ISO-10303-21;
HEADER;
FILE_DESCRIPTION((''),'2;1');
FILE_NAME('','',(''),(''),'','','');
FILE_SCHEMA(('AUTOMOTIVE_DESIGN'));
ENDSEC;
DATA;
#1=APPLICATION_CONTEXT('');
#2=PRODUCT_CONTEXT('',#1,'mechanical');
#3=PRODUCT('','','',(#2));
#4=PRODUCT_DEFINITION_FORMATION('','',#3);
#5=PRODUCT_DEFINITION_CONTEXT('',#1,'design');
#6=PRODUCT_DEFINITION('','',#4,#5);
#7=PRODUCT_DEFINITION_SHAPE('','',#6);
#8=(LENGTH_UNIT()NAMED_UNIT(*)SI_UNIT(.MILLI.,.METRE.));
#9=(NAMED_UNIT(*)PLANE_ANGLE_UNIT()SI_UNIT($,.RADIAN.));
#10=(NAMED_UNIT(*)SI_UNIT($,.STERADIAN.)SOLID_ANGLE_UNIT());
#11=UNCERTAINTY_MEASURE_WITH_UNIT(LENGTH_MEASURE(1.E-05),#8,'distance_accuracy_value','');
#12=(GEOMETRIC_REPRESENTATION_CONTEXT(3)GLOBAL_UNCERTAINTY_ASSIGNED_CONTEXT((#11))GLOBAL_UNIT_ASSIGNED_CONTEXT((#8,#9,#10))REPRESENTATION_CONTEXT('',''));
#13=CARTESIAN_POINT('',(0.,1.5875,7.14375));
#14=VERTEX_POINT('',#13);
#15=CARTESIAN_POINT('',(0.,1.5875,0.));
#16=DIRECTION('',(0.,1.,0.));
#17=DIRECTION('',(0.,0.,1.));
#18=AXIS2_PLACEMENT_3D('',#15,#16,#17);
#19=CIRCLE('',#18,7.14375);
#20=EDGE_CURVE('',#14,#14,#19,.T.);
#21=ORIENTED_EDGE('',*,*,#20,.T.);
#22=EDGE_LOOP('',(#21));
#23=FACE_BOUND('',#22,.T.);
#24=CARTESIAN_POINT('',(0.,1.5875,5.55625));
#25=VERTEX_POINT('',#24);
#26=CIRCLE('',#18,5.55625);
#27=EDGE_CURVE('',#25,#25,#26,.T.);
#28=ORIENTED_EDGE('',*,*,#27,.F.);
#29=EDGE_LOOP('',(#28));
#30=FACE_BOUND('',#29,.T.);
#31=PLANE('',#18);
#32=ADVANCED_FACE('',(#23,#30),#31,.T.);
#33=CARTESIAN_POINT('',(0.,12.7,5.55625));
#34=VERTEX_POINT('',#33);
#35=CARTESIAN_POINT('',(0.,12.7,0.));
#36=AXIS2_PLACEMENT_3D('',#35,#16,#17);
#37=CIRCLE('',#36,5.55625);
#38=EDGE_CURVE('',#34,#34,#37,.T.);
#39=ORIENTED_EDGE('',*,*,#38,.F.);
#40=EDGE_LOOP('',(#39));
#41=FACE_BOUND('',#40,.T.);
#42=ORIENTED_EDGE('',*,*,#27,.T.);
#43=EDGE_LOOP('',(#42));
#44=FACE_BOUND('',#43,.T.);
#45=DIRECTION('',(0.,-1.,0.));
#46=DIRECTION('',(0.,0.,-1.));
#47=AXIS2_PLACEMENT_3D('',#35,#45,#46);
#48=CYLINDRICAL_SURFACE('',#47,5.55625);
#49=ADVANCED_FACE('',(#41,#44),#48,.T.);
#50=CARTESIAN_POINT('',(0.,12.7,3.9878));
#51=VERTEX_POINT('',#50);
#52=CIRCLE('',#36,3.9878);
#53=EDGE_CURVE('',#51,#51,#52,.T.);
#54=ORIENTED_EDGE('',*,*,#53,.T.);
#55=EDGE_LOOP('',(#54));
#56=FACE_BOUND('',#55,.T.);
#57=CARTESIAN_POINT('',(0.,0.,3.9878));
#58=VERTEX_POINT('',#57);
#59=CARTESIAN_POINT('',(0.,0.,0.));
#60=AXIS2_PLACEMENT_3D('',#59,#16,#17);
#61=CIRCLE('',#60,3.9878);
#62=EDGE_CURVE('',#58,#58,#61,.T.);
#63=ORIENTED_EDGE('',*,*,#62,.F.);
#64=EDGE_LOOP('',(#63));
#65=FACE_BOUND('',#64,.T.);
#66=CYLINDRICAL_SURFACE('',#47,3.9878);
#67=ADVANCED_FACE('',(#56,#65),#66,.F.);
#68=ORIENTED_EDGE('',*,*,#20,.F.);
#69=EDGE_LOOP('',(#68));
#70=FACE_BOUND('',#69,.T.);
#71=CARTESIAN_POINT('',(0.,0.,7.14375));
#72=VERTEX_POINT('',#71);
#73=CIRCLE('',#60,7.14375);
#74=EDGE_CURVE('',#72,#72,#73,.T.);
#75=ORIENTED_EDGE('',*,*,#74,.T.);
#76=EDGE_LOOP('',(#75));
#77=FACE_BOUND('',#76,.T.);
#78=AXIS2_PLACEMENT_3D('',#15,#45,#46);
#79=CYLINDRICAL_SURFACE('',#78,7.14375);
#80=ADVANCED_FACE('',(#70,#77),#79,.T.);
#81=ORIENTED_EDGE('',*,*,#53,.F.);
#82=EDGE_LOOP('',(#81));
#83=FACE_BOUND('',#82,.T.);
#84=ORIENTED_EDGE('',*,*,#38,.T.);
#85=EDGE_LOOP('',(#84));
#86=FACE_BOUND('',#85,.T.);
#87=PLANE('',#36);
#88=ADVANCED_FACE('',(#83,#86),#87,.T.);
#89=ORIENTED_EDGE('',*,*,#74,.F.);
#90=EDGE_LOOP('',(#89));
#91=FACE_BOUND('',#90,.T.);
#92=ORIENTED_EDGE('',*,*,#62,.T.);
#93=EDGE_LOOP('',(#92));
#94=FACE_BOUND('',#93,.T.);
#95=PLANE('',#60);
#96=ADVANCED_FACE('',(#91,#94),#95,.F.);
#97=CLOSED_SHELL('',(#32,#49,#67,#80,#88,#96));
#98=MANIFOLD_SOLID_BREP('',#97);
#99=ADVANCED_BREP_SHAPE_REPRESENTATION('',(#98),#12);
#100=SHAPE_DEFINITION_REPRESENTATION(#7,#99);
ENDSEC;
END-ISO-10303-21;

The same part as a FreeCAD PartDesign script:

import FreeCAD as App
import Part
import Sketcher
from FreeCAD import Vector
Q = App.Units.Quantity

doc = App.newDocument("Part")
body = doc.addObject("PartDesign::Body", "Body")

sketch1 = body.newObject("Sketcher::SketchObject", "Sketch")
sketch1.AttachmentSupport = (doc.getObject("XZ_Plane"), [""])
sketch1.MapMode = "FlatFace"
sketch1.addGeometry([
    Part.Circle(Vector(0, 0, 0), Vector(0, 0, 1), 5.6),
    Part.Circle(Vector(0, 0, 0), Vector(0, 0, 1), 4),
], False)
sketch1.addConstraint([
    Sketcher.Constraint("Coincident", 0, 3, -1, 1),
    Sketcher.Constraint("Coincident", 1, 3, -1, 1),
    Sketcher.Constraint("Diameter", 0, Q("0.4375 in")),
    Sketcher.Constraint("Diameter", 1, Q("0.314 in")),
])
pad1 = body.newObject("PartDesign::Pad", "Pad")
pad1.Profile = sketch1
pad1.Length = Q("0.5 in")
pad1.Reversed = True

sketch2 = body.newObject("Sketcher::SketchObject", "Sketch001")
sketch2.AttachmentSupport = (doc.getObject("XZ_Plane"), [""])
sketch2.MapMode = "FlatFace"
sketch2.addGeometry([
    Part.Circle(Vector(0, 0, 0), Vector(0, 0, 1), 7),
    Part.Circle(Vector(0, 0, 0), Vector(0, 0, 1), 6),
], False)
sketch2.addConstraint([
    Sketcher.Constraint("Coincident", 0, 3, -1, 1),
    Sketcher.Constraint("Coincident", 1, 3, -1, 1),
    Sketcher.Constraint("Diameter", 0, Q("0.5625 in")),
    Sketcher.Constraint("Diameter", 1, Q("0.4375 in")),
])
pad2 = body.newObject("PartDesign::Pad", "Pad001")
pad2.Profile = sketch2
pad2.Length = Q("0.0625 in")
pad2.Reversed = True

doc.recompute()
